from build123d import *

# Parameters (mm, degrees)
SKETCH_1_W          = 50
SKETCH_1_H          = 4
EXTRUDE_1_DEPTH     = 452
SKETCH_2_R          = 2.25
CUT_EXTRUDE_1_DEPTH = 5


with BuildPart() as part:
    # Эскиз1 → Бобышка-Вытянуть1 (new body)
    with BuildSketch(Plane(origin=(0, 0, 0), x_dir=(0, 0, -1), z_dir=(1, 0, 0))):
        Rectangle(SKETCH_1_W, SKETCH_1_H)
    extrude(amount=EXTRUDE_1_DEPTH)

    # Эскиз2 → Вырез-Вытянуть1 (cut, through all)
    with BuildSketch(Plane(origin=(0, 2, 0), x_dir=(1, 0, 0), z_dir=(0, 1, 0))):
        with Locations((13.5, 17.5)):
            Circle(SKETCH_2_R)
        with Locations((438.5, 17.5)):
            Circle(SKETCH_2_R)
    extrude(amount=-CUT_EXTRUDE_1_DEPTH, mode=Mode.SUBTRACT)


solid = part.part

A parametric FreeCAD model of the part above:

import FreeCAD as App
import Part
import Sketcher
Q = App.Units.Quantity

doc = App.newDocument("Part")
body = doc.addObject("PartDesign::Body", "Body")

sketch1 = body.newObject("Sketcher::SketchObject", "Sketch")
sketch1.AttachmentSupport = (doc.getObject("YZ_Plane"), [""])
sketch1.MapMode = "FlatFace"
sketch1.addGeometry(Part.LineSegment(App.Vector(2, 25, 0), App.Vector(-2, 25, 0)), False)
sketch1.addGeometry(Part.LineSegment(App.Vector(-2, 25, 0), App.Vector(-2, -25, 0)), False)
sketch1.addGeometry(Part.LineSegment(App.Vector(-2, -25, 0), App.Vector(2, -25, 0)), False)
sketch1.addGeometry(Part.LineSegment(App.Vector(2, -25, 0), App.Vector(2, 25, 0)), False)
sketch1.addConstraint(Sketcher.Constraint("Coincident", 0, 2, 1, 1))
sketch1.addConstraint(Sketcher.Constraint("Coincident", 1, 2, 2, 1))
sketch1.addConstraint(Sketcher.Constraint("Coincident", 2, 2, 3, 1))
sketch1.addConstraint(Sketcher.Constraint("Coincident", 3, 2, 0, 1))
sketch1.addConstraint(Sketcher.Constraint("Horizontal", 0))
sketch1.addConstraint(Sketcher.Constraint("Vertical", 1))
sketch1.addConstraint(Sketcher.Constraint("Horizontal", 2))
sketch1.addConstraint(Sketcher.Constraint("Vertical", 3))
sketch1.addConstraint(Sketcher.Constraint("Symmetric", 0, 2, 2, 2, -1, 1))
sketch1.addConstraint(Sketcher.Constraint("DistanceX", 0, 2, 0, 1, Q("4 mm")))
sketch1.addConstraint(Sketcher.Constraint("DistanceY", 1, 2, 1, 1, Q("50 mm")))
pad1 = body.newObject("PartDesign::Pad", "Pad")
pad1.Profile = sketch1
pad1.Length = 452

sketch2 = body.newObject("Sketcher::SketchObject", "Sketch001")
sketch2.AttachmentSupport = (doc.getObject("XZ_Plane"), [""])
sketch2.MapMode = "FlatFace"
sketch2.AttachmentOffset = App.Placement(App.Vector(0, 0, -2), App.Rotation())
sketch2.addGeometry(Part.Circle(App.Vector(13.5, -17.5, 0), App.Vector(0, 0, 1), 2.2), False)
sketch2.addGeometry(Part.Circle(App.Vector(438.5, -17.5, 0), App.Vector(0, 0, 1), 2.2), False)
sketch2.addConstraint(Sketcher.Constraint("Equal", 0, 1))
sketch2.addConstraint(Sketcher.Constraint("Horizontal", 0, 3, 1, 3))
sketch2.addConstraint(Sketcher.Constraint("Diameter", 0, Q("4.5 mm")))
sketch2.addConstraint(Sketcher.Constraint("DistanceX", 0, 3, 1, 3, Q("425 mm")))
sketch2.addConstraint(Sketcher.Constraint("DistanceX", -1, 1, 0, 3, Q("13.5 mm")))
sketch2.addConstraint(Sketcher.Constraint("DistanceY", 0, 3, -1, 1, Q("17.5 mm")))
pocket1 = body.newObject("PartDesign::Pocket", "Pocket")
pocket1.Profile = sketch2
pocket1.Type = "ThroughAll"
pocket1.Reversed = True

doc.recompute()
